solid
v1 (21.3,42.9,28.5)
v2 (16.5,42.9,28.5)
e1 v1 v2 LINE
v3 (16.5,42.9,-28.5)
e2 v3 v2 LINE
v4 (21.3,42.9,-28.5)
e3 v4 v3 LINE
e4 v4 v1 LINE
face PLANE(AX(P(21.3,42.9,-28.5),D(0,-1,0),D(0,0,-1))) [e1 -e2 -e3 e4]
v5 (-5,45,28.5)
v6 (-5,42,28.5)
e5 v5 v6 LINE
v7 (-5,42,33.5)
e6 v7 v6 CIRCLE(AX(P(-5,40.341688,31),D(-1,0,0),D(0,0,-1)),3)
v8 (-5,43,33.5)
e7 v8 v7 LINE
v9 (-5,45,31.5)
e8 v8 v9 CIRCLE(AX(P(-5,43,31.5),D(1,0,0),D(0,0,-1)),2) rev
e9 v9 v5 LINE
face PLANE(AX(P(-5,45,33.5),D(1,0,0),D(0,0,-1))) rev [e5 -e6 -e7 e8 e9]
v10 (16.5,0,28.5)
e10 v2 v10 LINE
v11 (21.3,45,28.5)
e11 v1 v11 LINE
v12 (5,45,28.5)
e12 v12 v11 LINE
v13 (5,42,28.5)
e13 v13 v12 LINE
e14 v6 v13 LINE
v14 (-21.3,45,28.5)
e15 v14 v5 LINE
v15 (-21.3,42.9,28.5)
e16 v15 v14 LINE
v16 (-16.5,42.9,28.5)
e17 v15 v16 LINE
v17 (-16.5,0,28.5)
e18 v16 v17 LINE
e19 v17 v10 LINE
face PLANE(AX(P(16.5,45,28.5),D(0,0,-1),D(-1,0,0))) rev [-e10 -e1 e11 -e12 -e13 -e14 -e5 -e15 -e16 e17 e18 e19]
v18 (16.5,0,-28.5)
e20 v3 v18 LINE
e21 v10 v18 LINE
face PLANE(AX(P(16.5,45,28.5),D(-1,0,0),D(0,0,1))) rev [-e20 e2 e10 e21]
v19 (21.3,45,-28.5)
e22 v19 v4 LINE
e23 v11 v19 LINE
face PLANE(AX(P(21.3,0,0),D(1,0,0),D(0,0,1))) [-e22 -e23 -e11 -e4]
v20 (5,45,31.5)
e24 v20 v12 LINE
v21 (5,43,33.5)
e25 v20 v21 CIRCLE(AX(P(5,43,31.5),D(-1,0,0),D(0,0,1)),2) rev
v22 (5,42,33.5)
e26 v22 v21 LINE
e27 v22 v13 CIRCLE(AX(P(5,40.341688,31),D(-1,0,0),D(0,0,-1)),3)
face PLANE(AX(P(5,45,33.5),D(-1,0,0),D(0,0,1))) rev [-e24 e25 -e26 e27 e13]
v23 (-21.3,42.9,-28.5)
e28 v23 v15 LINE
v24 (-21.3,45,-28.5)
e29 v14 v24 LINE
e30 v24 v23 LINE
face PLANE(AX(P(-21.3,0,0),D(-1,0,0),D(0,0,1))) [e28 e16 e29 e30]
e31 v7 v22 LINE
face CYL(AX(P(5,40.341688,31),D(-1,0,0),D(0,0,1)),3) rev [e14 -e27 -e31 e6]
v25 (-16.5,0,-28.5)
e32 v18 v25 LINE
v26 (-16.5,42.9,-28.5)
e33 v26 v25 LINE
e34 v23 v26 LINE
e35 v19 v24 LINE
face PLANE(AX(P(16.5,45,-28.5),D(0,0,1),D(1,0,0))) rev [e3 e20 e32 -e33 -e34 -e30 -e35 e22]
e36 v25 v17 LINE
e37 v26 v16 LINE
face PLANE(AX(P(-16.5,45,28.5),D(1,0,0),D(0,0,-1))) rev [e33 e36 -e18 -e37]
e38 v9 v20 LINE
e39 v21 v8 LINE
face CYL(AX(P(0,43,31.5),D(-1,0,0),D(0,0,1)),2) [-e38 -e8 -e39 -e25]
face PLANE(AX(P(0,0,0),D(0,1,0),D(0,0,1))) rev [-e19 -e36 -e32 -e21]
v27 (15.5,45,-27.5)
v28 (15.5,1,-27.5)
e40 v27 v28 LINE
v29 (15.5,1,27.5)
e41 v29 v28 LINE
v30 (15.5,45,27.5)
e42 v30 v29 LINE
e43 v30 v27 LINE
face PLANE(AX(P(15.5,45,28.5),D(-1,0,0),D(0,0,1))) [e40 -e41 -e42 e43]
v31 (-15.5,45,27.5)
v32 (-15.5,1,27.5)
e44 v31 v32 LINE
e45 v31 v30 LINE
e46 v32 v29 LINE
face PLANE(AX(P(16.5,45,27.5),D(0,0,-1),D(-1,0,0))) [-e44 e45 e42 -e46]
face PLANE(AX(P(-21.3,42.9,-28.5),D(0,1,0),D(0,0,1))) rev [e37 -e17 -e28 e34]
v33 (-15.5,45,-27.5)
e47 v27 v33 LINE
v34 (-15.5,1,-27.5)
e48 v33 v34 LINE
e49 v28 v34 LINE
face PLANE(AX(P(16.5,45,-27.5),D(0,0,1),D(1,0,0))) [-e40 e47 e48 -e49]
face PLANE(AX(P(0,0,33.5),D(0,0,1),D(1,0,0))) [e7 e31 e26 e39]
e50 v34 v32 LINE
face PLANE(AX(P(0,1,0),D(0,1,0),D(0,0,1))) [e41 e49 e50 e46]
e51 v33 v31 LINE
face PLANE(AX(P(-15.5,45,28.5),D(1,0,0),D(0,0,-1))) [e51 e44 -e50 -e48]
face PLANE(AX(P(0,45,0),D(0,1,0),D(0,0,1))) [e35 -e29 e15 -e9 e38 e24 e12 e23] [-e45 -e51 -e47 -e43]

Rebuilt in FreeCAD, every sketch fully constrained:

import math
import FreeCAD as App
import Part
import Sketcher


def edges_at(feature, points):
    """Names of the edges that pass closest to the given points."""
    edges = feature.Shape.Edges
    near = lambda p: min(range(len(edges)), key=lambda i: edges[i].distToShape(Part.Vertex(*p))[0])
    return sorted({f"Edge{near(p) + 1}" for p in points})


def faces_at(feature, points):
    """Names of the faces that lie closest to the given points."""
    faces = feature.Shape.Faces
    near = lambda p: min(range(len(faces)), key=lambda i: faces[i].distToShape(Part.Vertex(*p))[0])
    return sorted({f"Face{near(p) + 1}" for p in points})

doc = App.newDocument("Part")
body = doc.addObject("PartDesign::Body", "Body")

# Sketch on XZ plane
sketch1 = body.newObject("Sketcher::SketchObject", "Sketch")
sketch1.AttachmentSupport = (doc.getObject("XZ_Plane"), [""])
sketch1.MapMode = "FlatFace"
sketch1.addGeometry(Part.LineSegment(App.Vector(-16, -28, 0), App.Vector(-16, 28, 0)), False)
sketch1.addGeometry(Part.LineSegment(App.Vector(-16, 28, 0), App.Vector(16, 28, 0)), False)
sketch1.addGeometry(Part.LineSegment(App.Vector(16, 28, 0), App.Vector(16, -28, 0)), False)
sketch1.addGeometry(Part.LineSegment(App.Vector(16, -28, 0), App.Vector(-16, -28, 0)), False)
sketch1.addConstraint(Sketcher.Constraint("Coincident", 0, 2, 1, 1))
sketch1.addConstraint(Sketcher.Constraint("Coincident", 1, 2, 2, 1))
sketch1.addConstraint(Sketcher.Constraint("Coincident", 2, 2, 3, 1))
sketch1.addConstraint(Sketcher.Constraint("Coincident", 3, 2, 0, 1))
sketch1.addConstraint(Sketcher.Constraint("Vertical", 0))
sketch1.addConstraint(Sketcher.Constraint("Horizontal", 1))
sketch1.addConstraint(Sketcher.Constraint("Vertical", 2))
sketch1.addConstraint(Sketcher.Constraint("Horizontal", 3))
sketch1.addConstraint(Sketcher.Constraint("Symmetric", 0, 2, 2, 2, -1, 1))
sketch1.addConstraint(Sketcher.Constraint("DistanceX", 1, 1, 1, 2, 33.0))
sketch1.addConstraint(Sketcher.Constraint("DistanceY", 0, 1, 0, 2, 57.0))
pad1 = body.newObject("PartDesign::Pad", "Pad")
pad1.Profile = sketch1
pad1.Length = 45
pad1.Reversed = True
doc.recompute()

thickness = body.newObject("PartDesign::Thickness", "Thickness")
thickness.Base = (pad1, faces_at(pad1, [(0, 45, 0)]))
thickness.Value = 1
thickness.Reversed = True
thickness.Join = "Intersection"

# Sketch on YZ plane
sketch2 = body.newObject("Sketcher::SketchObject", "Sketch001")
sketch2.AttachmentSupport = (doc.getObject("YZ_Plane"), [""])
sketch2.MapMode = "FlatFace"
sketch2.AttachmentOffset = App.Placement(App.Vector(0, 0, -16.5), App.Rotation())
sketch2.addGeometry(Part.LineSegment(App.Vector(45, -28.5, 0), App.Vector(42.9, -28.5, 0)), False)
sketch2.addGeometry(Part.LineSegment(App.Vector(42.9, -28.5, 0), App.Vector(42.9, 28.5, 0)), False)
sketch2.addGeometry(Part.LineSegment(App.Vector(42.9, 28.5, 0), App.Vector(45, 28.5, 0)), False)
sketch2.addGeometry(Part.LineSegment(App.Vector(45, 28.5, 0), App.Vector(45, -28.5, 0)), False)
sketch2.addConstraint(Sketcher.Constraint("Coincident", 0, 2, 1, 1))
sketch2.addConstraint(Sketcher.Constraint("Coincident", 1, 2, 2, 1))
sketch2.addConstraint(Sketcher.Constraint("Coincident", 2, 2, 3, 1))
sketch2.addConstraint(Sketcher.Constraint("Coincident", 3, 2, 0, 1))
sketch2.addConstraint(Sketcher.Constraint("Horizontal", 0))
sketch2.addConstraint(Sketcher.Constraint("Vertical", 1))
sketch2.addConstraint(Sketcher.Constraint("Horizontal", 2))
sketch2.addConstraint(Sketcher.Constraint("Vertical", 3))
sketch2.addConstraint(Sketcher.Constraint("DistanceY", 1, 1, 1, 2, 57.0))
sketch2.addConstraint(Sketcher.Constraint("DistanceX", 0, 2, 0, 1, 2.1))
sketch2.addConstraint(Sketcher.Constraint("DistanceX", -1, 1, 2, 2, 45.0))
sketch2.addConstraint(Sketcher.Constraint("DistanceY", 0, 2, -1, 1, 28.5))
pad2 = body.newObject("PartDesign::Pad", "Pad001")
pad2.Profile = sketch2
pad2.Length = 4.8
pad2.Reversed = True
doc.recompute()

mirrored = body.newObject("PartDesign::Mirrored", "Mirrored")
mirrored.Originals = [pad2]
mirrored.MirrorPlane = (doc.getObject("YZ_Plane"), [""])
body.Tip = mirrored

# Sketch on XY plane
sketch3 = body.newObject("Sketcher::SketchObject", "Sketch002")
sketch3.AttachmentSupport = (doc.getObject("XY_Plane"), [""])
sketch3.MapMode = "FlatFace"
sketch3.AttachmentOffset = App.Placement(App.Vector(0, 0, 28.5), App.Rotation())
sketch3.addGeometry(Part.LineSegment(App.Vector(-5, 45, 0), App.Vector(-5, 42, 0)), False)
sketch3.addGeometry(Part.LineSegment(App.Vector(-5, 42, 0), App.Vector(5, 42, 0)), False)
sketch3.addGeometry(Part.LineSegment(App.Vector(5, 42, 0), App.Vector(5, 45, 0)), False)
sketch3.addGeometry(Part.LineSegment(App.Vector(5, 45, 0), App.Vector(-5, 45, 0)), False)
sketch3.addConstraint(Sketcher.Constraint("Coincident", 0, 2, 1, 1))
sketch3.addConstraint(Sketcher.Constraint("Coincident", 1, 2, 2, 1))
sketch3.addConstraint(Sketcher.Constraint("Coincident", 2, 2, 3, 1))
sketch3.addConstraint(Sketcher.Constraint("Coincident", 3, 2, 0, 1))
sketch3.addConstraint(Sketcher.Constraint("Vertical", 0))
sketch3.addConstraint(Sketcher.Constraint("Horizontal", 1))
sketch3.addConstraint(Sketcher.Constraint("Vertical", 2))
sketch3.addConstraint(Sketcher.Constraint("Horizontal", 3))
sketch3.addConstraint(Sketcher.Constraint("DistanceX", 1, 1, 1, 2, 10.0))
sketch3.addConstraint(Sketcher.Constraint("DistanceY", 0, 2, 0, 1, 3.0))
sketch3.addConstraint(Sketcher.Constraint("DistanceX", 0, 2, -1, 1, 5.0))
sketch3.addConstraint(Sketcher.Constraint("DistanceY", -1, 1, 0, 2, 42.0))
pad3 = body.newObject("PartDesign::Pad", "Pad002")
pad3.Profile = sketch3
pad3.Length = 5

# Sketch on YZ plane
sketch4 = body.newObject("Sketcher::SketchObject", "Sketch003")
sketch4.AttachmentSupport = (doc.getObject("YZ_Plane"), [""])
sketch4.MapMode = "FlatFace"
sketch4.AttachmentOffset = App.Placement(App.Vector(0, 0, -5), App.Rotation())
sketch4.addGeometry(Part.LineSegment(App.Vector(42, 28.5, 0), App.Vector(42, 33.5, 0)), False)
sketch4.addGeometry(Part.ArcOfCircle(Part.Circle(App.Vector(40.3, 31, 0), App.Vector(0, 0, 1), 3), math.radians(-56), math.radians(56)), False)
sketch4.addConstraint(Sketcher.Constraint("Coincident", 0, 1, 1, 1))
sketch4.addConstraint(Sketcher.Constraint("Coincident", 1, 2, 0, 2))
sketch4.addConstraint(Sketcher.Constraint("Vertical", 0))
sketch4.addConstraint(Sketcher.Constraint("Radius", 1, 3.0))
sketch4.addConstraint(Sketcher.Constraint("DistanceY", 0, 1, 0, 2, 5.0))
sketch4.addConstraint(Sketcher.Constraint("DistanceY", -1, 1, 1, 3, 31.0))
sketch4.addConstraint(Sketcher.Constraint("DistanceX", -1, 1, 0, 1, 42.0))
pocket1 = body.newObject("PartDesign::Pocket", "Pocket")
pocket1.Profile = sketch4
pocket1.Length = 10
pocket1.Reversed = True
doc.recompute()

fillet = body.newObject("PartDesign::Fillet", "Fillet")
fillet.Base = (pocket1, edges_at(pocket1, [(0, 45, 33.5)]))
fillet.Radius = 2

doc.recompute()
